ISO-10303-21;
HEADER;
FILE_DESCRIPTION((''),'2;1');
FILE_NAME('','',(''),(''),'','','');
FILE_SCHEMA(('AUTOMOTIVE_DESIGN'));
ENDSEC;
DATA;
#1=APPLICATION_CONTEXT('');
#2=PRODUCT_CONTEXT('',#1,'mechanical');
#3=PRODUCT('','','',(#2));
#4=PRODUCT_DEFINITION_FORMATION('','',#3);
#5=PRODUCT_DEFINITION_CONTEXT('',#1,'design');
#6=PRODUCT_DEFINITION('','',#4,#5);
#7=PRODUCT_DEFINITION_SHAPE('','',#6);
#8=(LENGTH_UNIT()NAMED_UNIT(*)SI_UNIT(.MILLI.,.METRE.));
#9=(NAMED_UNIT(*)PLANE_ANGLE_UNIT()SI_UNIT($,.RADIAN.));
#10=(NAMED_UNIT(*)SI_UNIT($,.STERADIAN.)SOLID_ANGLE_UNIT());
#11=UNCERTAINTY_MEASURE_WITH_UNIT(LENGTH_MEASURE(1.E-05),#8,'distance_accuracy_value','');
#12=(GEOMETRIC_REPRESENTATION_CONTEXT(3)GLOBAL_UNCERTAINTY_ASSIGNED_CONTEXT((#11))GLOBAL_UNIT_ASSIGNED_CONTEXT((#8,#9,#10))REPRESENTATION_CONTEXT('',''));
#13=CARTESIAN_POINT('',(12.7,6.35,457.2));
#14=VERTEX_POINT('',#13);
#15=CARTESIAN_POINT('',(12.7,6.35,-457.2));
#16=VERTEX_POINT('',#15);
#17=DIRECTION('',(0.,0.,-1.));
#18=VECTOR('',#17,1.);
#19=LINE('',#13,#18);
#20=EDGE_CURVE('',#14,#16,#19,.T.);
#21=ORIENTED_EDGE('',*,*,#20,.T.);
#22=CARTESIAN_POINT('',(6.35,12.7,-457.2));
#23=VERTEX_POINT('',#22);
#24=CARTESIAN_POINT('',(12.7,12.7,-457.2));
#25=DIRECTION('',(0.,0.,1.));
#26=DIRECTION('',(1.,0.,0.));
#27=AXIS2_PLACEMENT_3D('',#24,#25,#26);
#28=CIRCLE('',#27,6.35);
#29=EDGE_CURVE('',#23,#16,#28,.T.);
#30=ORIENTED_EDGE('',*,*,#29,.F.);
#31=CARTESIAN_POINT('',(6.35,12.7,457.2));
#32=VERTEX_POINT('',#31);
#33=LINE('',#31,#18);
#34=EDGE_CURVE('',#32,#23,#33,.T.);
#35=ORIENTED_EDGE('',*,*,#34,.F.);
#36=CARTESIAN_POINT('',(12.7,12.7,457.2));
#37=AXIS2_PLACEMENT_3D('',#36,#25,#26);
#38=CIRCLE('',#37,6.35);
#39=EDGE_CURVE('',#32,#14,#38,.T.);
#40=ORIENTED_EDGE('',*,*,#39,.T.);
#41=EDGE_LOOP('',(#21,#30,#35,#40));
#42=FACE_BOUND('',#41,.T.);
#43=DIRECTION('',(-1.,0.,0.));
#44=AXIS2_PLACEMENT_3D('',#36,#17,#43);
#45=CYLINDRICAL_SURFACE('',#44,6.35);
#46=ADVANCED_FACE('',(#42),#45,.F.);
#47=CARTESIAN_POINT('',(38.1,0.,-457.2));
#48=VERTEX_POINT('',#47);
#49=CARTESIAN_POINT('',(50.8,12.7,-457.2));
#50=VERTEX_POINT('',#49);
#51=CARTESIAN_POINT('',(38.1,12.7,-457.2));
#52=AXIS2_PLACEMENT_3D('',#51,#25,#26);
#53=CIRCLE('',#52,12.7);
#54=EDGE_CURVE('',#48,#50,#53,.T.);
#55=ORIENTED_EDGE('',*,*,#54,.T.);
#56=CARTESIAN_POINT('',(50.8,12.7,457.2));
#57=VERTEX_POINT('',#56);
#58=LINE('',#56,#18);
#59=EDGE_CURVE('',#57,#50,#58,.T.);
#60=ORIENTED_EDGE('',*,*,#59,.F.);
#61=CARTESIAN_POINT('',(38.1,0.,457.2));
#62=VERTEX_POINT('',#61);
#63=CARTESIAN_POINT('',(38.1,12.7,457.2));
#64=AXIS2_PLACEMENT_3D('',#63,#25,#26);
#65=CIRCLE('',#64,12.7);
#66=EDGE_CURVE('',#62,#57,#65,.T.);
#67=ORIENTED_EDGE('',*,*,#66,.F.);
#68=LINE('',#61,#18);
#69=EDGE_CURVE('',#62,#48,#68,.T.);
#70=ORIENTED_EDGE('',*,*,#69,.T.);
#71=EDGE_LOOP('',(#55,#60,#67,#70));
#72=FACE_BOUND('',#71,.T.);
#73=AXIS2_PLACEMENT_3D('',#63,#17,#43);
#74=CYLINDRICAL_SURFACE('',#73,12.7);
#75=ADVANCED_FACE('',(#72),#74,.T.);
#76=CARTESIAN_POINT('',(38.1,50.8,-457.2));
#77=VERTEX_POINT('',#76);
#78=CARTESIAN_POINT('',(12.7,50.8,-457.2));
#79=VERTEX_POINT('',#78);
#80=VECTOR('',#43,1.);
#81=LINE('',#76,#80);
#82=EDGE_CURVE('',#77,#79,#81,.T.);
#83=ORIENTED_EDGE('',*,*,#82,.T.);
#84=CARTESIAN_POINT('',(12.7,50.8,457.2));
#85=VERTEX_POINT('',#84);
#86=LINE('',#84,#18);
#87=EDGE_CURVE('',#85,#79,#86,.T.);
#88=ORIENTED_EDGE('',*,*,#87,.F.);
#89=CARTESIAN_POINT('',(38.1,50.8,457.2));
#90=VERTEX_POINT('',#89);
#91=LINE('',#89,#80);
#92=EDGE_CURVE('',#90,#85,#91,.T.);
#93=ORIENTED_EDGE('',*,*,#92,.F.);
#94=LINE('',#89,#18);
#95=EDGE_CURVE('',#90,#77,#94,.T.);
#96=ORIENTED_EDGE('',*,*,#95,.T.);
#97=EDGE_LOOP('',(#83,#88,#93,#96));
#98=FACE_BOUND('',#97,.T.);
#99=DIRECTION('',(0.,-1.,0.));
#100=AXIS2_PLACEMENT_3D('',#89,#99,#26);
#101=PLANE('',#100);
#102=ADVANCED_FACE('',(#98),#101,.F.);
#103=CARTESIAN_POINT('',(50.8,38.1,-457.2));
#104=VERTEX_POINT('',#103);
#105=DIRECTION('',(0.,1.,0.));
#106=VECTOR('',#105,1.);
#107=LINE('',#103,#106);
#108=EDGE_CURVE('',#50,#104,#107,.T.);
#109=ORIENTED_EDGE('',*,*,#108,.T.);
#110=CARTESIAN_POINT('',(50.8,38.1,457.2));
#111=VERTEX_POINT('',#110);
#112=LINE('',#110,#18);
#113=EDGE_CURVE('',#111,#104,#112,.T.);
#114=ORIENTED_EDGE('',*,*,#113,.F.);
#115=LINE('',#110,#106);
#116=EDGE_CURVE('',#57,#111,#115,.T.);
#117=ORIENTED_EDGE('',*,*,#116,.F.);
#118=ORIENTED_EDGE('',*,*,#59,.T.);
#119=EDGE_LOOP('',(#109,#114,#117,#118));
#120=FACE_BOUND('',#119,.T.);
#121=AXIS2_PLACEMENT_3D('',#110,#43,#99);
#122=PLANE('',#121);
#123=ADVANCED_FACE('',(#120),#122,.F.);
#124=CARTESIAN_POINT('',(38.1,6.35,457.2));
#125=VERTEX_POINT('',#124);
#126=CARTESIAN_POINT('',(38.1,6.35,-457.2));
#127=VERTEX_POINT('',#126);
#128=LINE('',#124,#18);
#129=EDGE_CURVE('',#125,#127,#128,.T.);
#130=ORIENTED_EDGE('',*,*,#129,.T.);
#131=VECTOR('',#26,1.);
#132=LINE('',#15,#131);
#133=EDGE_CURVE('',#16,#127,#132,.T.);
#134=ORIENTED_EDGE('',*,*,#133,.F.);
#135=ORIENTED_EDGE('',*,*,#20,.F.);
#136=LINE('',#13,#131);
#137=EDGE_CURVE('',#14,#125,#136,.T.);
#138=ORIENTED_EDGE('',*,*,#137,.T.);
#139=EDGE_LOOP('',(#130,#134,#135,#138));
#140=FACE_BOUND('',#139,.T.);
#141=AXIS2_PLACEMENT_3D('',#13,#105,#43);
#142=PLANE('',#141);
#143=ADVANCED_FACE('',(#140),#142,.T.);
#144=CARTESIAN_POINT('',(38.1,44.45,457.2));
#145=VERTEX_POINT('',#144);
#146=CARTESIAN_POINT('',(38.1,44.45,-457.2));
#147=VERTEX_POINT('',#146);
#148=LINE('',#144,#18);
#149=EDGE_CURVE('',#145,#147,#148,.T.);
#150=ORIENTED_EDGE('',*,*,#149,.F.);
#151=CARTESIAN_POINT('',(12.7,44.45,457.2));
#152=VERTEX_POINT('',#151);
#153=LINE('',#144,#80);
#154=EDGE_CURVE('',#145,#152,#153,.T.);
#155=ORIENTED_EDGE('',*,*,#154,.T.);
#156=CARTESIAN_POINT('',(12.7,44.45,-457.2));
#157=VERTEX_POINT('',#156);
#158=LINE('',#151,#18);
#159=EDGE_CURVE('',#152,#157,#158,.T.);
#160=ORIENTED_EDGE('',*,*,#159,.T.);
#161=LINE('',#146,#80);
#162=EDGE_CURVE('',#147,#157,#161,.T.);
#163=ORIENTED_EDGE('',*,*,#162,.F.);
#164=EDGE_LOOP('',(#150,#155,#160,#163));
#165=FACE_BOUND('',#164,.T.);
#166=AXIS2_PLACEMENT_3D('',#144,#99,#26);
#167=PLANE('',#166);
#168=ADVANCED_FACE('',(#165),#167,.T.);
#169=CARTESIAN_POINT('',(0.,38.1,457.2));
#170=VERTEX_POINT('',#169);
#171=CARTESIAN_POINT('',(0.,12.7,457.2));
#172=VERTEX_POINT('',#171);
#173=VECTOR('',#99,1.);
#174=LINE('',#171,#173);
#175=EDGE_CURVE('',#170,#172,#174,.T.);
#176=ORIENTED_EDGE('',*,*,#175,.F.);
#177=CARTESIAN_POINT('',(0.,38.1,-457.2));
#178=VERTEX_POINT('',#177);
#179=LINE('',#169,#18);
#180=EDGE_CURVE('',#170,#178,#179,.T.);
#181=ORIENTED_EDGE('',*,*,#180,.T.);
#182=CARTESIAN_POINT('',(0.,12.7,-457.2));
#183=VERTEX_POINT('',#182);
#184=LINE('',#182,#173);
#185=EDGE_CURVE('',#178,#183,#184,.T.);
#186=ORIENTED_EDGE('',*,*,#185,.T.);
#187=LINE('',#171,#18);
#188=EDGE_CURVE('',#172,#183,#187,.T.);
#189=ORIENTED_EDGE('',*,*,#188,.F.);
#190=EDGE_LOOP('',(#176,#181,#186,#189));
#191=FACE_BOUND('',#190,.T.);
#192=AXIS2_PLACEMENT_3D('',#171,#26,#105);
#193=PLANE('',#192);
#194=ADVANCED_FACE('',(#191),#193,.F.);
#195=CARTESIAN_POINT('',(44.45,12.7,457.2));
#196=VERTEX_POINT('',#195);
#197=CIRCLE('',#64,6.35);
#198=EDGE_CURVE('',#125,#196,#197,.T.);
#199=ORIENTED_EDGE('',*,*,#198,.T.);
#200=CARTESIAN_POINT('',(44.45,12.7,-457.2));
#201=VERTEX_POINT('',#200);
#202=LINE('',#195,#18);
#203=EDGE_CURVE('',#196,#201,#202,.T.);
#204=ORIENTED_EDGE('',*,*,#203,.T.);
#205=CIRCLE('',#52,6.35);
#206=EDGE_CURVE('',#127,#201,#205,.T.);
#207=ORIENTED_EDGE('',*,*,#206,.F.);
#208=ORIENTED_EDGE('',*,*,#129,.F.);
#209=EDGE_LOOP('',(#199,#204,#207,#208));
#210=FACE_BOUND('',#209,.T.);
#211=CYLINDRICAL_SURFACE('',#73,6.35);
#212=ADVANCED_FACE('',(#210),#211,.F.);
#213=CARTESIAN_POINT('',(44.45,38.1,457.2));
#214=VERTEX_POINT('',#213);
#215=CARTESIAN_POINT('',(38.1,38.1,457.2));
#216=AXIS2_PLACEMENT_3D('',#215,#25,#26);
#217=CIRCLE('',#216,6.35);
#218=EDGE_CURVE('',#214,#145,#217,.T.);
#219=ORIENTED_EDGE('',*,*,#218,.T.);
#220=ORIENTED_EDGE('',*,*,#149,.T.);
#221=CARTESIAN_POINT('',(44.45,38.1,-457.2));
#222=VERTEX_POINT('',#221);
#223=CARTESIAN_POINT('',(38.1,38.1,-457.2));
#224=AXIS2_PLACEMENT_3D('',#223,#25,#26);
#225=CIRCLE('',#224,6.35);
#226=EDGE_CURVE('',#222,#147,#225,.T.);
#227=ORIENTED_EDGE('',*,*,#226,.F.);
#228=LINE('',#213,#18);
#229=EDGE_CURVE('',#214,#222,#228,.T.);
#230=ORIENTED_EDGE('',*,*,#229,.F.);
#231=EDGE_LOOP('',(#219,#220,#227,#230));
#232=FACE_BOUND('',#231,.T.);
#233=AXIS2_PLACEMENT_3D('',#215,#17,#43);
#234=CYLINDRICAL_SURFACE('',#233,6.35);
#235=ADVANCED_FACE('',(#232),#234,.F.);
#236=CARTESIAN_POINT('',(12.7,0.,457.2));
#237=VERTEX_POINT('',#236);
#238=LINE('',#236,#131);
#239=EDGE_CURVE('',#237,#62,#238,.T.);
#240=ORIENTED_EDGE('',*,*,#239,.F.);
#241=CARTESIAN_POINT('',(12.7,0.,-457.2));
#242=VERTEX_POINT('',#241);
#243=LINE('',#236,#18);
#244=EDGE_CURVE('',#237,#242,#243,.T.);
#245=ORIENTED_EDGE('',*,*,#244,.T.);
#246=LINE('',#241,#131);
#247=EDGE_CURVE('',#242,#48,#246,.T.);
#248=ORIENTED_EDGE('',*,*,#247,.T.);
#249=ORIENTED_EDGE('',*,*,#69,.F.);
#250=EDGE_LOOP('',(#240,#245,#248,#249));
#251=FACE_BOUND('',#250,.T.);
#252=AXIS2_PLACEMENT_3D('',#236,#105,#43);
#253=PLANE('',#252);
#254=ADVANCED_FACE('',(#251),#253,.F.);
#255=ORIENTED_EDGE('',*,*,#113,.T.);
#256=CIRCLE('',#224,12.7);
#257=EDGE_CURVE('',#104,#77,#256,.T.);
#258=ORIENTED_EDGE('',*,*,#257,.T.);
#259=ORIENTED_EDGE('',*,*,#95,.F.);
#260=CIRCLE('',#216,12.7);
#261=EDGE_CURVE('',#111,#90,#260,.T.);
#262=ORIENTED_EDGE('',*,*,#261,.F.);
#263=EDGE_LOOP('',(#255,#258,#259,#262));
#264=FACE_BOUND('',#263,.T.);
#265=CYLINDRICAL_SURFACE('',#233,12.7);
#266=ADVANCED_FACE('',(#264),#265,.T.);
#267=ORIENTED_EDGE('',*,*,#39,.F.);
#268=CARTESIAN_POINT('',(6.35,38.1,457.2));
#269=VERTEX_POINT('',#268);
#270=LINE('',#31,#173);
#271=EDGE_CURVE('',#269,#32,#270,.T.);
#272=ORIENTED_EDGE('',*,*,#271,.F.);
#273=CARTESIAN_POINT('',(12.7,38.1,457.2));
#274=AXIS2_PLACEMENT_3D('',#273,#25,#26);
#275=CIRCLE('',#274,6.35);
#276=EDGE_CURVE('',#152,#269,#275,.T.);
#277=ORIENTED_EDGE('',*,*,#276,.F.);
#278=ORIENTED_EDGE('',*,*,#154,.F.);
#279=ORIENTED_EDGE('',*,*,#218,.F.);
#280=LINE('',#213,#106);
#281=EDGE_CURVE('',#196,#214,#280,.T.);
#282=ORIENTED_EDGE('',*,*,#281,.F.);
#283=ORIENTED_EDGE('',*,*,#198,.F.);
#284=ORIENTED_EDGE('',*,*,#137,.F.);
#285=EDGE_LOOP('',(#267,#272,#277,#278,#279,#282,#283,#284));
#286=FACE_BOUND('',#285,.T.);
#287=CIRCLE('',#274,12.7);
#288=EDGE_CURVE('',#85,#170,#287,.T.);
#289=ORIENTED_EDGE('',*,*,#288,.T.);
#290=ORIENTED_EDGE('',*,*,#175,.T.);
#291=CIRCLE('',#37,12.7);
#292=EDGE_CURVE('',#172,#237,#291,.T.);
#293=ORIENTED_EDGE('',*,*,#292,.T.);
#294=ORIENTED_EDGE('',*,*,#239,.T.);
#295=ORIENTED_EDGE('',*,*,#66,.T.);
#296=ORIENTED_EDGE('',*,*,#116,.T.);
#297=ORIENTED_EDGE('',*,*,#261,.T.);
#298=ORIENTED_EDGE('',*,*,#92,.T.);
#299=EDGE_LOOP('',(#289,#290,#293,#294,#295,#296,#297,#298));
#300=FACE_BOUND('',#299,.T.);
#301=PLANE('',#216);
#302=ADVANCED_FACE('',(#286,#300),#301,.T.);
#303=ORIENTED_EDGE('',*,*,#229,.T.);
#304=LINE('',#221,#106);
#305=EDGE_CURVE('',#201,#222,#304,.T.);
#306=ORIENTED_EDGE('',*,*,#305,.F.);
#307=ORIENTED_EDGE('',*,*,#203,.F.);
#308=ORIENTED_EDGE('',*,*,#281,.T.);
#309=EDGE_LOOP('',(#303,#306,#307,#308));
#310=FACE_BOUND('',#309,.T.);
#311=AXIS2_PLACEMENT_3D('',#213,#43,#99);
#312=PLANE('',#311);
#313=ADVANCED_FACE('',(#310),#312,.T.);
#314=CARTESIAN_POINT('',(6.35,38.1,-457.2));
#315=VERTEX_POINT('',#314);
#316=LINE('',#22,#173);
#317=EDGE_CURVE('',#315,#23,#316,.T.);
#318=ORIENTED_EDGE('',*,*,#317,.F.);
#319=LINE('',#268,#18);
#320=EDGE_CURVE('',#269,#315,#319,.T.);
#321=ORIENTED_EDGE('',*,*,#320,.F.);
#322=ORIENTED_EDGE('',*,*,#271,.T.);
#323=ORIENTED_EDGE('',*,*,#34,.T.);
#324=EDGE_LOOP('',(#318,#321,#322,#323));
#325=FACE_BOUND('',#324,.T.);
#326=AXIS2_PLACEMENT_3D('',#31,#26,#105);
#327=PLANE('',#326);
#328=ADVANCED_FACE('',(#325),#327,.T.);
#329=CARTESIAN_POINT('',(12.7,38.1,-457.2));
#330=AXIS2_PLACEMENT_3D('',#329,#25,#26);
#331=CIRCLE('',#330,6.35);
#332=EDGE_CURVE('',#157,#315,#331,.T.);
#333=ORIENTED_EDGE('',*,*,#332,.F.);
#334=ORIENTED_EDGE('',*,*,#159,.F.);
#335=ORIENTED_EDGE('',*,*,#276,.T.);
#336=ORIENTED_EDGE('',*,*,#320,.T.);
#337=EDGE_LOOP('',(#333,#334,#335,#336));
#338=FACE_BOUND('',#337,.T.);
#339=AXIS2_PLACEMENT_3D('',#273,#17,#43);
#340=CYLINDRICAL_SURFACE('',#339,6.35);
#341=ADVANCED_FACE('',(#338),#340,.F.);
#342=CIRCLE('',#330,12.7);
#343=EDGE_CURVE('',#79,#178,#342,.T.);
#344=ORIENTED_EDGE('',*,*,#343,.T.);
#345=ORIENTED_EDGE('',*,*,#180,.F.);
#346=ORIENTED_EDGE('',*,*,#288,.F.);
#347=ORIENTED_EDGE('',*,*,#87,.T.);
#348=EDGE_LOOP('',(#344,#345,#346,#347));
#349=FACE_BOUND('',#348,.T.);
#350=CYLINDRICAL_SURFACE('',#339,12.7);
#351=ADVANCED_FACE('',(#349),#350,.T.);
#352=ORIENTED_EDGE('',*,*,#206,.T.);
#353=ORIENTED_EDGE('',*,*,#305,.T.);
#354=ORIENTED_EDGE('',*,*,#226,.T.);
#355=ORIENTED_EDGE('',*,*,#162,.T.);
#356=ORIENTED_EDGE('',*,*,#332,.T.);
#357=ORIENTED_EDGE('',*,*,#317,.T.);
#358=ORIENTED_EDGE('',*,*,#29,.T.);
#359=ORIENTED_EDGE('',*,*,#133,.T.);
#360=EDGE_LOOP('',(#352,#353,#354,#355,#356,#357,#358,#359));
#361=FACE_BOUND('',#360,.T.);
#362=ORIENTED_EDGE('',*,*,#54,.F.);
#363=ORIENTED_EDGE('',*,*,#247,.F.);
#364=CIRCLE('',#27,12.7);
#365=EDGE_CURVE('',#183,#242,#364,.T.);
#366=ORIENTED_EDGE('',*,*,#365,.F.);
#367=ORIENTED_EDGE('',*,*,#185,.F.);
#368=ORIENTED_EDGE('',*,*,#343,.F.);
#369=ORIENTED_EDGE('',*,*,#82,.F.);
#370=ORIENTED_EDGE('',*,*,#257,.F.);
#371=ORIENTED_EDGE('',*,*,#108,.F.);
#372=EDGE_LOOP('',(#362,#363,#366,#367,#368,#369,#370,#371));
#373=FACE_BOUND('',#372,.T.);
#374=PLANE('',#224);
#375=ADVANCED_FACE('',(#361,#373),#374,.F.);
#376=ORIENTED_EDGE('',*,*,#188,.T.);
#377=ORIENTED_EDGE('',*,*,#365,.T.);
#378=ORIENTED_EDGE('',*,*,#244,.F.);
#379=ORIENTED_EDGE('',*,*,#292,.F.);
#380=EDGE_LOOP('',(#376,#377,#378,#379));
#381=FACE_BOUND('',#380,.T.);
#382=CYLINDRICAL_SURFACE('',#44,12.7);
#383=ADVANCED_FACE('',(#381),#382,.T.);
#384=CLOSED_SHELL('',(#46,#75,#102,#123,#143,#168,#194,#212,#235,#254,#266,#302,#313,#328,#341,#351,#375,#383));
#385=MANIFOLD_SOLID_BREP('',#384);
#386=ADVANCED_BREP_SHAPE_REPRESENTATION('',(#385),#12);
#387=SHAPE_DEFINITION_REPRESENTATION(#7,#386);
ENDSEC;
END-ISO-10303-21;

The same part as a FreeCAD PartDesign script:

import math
import FreeCAD as App
import Part
import Sketcher
Q = App.Units.Quantity

doc = App.newDocument("Part")
params = doc.addObject("Spreadsheet::Sheet", "Params")
for row, (alias, value) in enumerate([
    ("sketch1_radius", "0.5 in"),
    ("sketch1_width", "1 in"),
    ("sketch1_radius2", "0.25 in"),
    ("pad1_length", "36 in"),
], start=1):
    params.set(f"A{row}", alias)
    params.set(f"B{row}", "=" + value)
    params.setAlias(f"B{row}", alias)

body = doc.addObject("PartDesign::Body", "Body")

# Sketch on XY plane
sketch1 = body.newObject("Sketcher::SketchObject", "Sketch")
sketch1.AttachmentSupport = (doc.getObject("XY_Plane"), [""])
sketch1.MapMode = "FlatFace"
sketch1.addGeometry(Part.LineSegment(App.Vector(13, 0, 0), App.Vector(38, 0, 0)), False)
sketch1.addGeometry(Part.ArcOfCircle(Part.Circle(App.Vector(38, 13, 0), App.Vector(0, 0, 1), 13), math.radians(-90), math.radians(0)), False)
sketch1.addGeometry(Part.LineSegment(App.Vector(51, 13, 0), App.Vector(51, 38, 0)), False)
sketch1.addGeometry(Part.ArcOfCircle(Part.Circle(App.Vector(38, 38, 0), App.Vector(0, 0, 1), 13), math.radians(0), math.radians(90)), False)
sketch1.addGeometry(Part.LineSegment(App.Vector(38, 51, 0), App.Vector(13, 51, 0)), False)
sketch1.addGeometry(Part.ArcOfCircle(Part.Circle(App.Vector(13, 38, 0), App.Vector(0, 0, 1), 13), math.radians(90), math.radians(180)), False)
sketch1.addGeometry(Part.LineSegment(App.Vector(0, 38, 0), App.Vector(0, 13, 0)), False)
sketch1.addGeometry(Part.ArcOfCircle(Part.Circle(App.Vector(13, 13, 0), App.Vector(0, 0, 1), 13), math.radians(180), math.radians(270)), False)
sketch1.addGeometry(Part.LineSegment(App.Vector(38, 6, 0), App.Vector(13, 6, 0)), False)
sketch1.addGeometry(Part.ArcOfCircle(Part.Circle(App.Vector(13, 13, 0), App.Vector(0, 0, 1), 6), math.radians(180), math.radians(270)), False)
sketch1.addGeometry(Part.LineSegment(App.Vector(6, 13, 0), App.Vector(6, 38, 0)), False)
sketch1.addGeometry(Part.ArcOfCircle(Part.Circle(App.Vector(13, 38, 0), App.Vector(0, 0, 1), 6), math.radians(90), math.radians(180)), False)
sketch1.addGeometry(Part.LineSegment(App.Vector(13, 44, 0), App.Vector(38, 44, 0)), False)
sketch1.addGeometry(Part.ArcOfCircle(Part.Circle(App.Vector(38, 38, 0), App.Vector(0, 0, 1), 6), math.radians(0), math.radians(90)), False)
sketch1.addGeometry(Part.LineSegment(App.Vector(44, 38, 0), App.Vector(44, 13, 0)), False)
sketch1.addGeometry(Part.ArcOfCircle(Part.Circle(App.Vector(38, 13, 0), App.Vector(0, 0, 1), 6), math.radians(-90), math.radians(0)), False)
sketch1.addConstraint(Sketcher.Constraint("Tangent", 0, 2, 1, 1))
sketch1.addConstraint(Sketcher.Constraint("Tangent", 1, 2, 2, 1))
sketch1.addConstraint(Sketcher.Constraint("Tangent", 2, 2, 3, 1))
sketch1.addConstraint(Sketcher.Constraint("Tangent", 3, 2, 4, 1))
sketch1.addConstraint(Sketcher.Constraint("Tangent", 4, 2, 5, 1))
sketch1.addConstraint(Sketcher.Constraint("Tangent", 5, 2, 6, 1))
sketch1.addConstraint(Sketcher.Constraint("Tangent", 6, 2, 7, 1))
sketch1.addConstraint(Sketcher.Constraint("Tangent", 7, 2, 0, 1))
sketch1.addConstraint(Sketcher.Constraint("Tangent", 8, 2, 9, 2))
sketch1.addConstraint(Sketcher.Constraint("Tangent", 9, 1, 10, 1))
sketch1.addConstraint(Sketcher.Constraint("Tangent", 10, 2, 11, 2))
sketch1.addConstraint(Sketcher.Constraint("Tangent", 11, 1, 12, 1))
sketch1.addConstraint(Sketcher.Constraint("Tangent", 12, 2, 13, 2))
sketch1.addConstraint(Sketcher.Constraint("Tangent", 13, 1, 14, 1))
sketch1.addConstraint(Sketcher.Constraint("Tangent", 14, 2, 15, 2))
sketch1.addConstraint(Sketcher.Constraint("Tangent", 15, 1, 8, 1))
sketch1.addConstraint(Sketcher.Constraint("Horizontal", 0))
sketch1.addConstraint(Sketcher.Constraint("Vertical", 2))
sketch1.addConstraint(Sketcher.Constraint("Horizontal", 4))
sketch1.addConstraint(Sketcher.Constraint("Vertical", 6))
sketch1.addConstraint(Sketcher.Constraint("Horizontal", 8))
sketch1.addConstraint(Sketcher.Constraint("Vertical", 10))
sketch1.addConstraint(Sketcher.Constraint("Horizontal", 12))
sketch1.addConstraint(Sketcher.Constraint("Vertical", 14))
sketch1.addConstraint(Sketcher.Constraint("Coincident", 9, 3, 7, 3))
sketch1.addConstraint(Sketcher.Constraint("Coincident", 11, 3, 5, 3))
sketch1.addConstraint(Sketcher.Constraint("Coincident", 13, 3, 3, 3))
sketch1.addConstraint(Sketcher.Constraint("Equal", 1, 3))
sketch1.addConstraint(Sketcher.Constraint("Equal", 3, 5))
sketch1.addConstraint(Sketcher.Constraint("Equal", 5, 7))
sketch1.addConstraint(Sketcher.Constraint("Equal", 13, 15))
sketch1.addConstraint(Sketcher.Constraint("PointOnObject", 0, 2, -1))
sketch1.addConstraint(Sketcher.Constraint("PointOnObject", 5, 2, -2))
sketch1.addConstraint(Sketcher.Constraint("Equal", 12, 2))
sketch1.addConstraint(Sketcher.Constraint("Radius", 1, Q("0.5 in")))
sketch1.addConstraint(Sketcher.Constraint("DistanceX", 0, 1, 0, 2, Q("1 in")))
sketch1.addConstraint(Sketcher.Constraint("Radius", 9, Q("0.25 in")))
sketch1.setExpression("Constraints[34]", "Params.sketch1_radius")
sketch1.setExpression("Constraints[35]", "Params.sketch1_width")
sketch1.setExpression("Constraints[36]", "Params.sketch1_radius2")
pad1 = body.newObject("PartDesign::Pad", "Pad")
pad1.Profile = sketch1
pad1.setExpression("Length", "Params.pad1_length")
pad1.Midplane = True

doc.recompute()
